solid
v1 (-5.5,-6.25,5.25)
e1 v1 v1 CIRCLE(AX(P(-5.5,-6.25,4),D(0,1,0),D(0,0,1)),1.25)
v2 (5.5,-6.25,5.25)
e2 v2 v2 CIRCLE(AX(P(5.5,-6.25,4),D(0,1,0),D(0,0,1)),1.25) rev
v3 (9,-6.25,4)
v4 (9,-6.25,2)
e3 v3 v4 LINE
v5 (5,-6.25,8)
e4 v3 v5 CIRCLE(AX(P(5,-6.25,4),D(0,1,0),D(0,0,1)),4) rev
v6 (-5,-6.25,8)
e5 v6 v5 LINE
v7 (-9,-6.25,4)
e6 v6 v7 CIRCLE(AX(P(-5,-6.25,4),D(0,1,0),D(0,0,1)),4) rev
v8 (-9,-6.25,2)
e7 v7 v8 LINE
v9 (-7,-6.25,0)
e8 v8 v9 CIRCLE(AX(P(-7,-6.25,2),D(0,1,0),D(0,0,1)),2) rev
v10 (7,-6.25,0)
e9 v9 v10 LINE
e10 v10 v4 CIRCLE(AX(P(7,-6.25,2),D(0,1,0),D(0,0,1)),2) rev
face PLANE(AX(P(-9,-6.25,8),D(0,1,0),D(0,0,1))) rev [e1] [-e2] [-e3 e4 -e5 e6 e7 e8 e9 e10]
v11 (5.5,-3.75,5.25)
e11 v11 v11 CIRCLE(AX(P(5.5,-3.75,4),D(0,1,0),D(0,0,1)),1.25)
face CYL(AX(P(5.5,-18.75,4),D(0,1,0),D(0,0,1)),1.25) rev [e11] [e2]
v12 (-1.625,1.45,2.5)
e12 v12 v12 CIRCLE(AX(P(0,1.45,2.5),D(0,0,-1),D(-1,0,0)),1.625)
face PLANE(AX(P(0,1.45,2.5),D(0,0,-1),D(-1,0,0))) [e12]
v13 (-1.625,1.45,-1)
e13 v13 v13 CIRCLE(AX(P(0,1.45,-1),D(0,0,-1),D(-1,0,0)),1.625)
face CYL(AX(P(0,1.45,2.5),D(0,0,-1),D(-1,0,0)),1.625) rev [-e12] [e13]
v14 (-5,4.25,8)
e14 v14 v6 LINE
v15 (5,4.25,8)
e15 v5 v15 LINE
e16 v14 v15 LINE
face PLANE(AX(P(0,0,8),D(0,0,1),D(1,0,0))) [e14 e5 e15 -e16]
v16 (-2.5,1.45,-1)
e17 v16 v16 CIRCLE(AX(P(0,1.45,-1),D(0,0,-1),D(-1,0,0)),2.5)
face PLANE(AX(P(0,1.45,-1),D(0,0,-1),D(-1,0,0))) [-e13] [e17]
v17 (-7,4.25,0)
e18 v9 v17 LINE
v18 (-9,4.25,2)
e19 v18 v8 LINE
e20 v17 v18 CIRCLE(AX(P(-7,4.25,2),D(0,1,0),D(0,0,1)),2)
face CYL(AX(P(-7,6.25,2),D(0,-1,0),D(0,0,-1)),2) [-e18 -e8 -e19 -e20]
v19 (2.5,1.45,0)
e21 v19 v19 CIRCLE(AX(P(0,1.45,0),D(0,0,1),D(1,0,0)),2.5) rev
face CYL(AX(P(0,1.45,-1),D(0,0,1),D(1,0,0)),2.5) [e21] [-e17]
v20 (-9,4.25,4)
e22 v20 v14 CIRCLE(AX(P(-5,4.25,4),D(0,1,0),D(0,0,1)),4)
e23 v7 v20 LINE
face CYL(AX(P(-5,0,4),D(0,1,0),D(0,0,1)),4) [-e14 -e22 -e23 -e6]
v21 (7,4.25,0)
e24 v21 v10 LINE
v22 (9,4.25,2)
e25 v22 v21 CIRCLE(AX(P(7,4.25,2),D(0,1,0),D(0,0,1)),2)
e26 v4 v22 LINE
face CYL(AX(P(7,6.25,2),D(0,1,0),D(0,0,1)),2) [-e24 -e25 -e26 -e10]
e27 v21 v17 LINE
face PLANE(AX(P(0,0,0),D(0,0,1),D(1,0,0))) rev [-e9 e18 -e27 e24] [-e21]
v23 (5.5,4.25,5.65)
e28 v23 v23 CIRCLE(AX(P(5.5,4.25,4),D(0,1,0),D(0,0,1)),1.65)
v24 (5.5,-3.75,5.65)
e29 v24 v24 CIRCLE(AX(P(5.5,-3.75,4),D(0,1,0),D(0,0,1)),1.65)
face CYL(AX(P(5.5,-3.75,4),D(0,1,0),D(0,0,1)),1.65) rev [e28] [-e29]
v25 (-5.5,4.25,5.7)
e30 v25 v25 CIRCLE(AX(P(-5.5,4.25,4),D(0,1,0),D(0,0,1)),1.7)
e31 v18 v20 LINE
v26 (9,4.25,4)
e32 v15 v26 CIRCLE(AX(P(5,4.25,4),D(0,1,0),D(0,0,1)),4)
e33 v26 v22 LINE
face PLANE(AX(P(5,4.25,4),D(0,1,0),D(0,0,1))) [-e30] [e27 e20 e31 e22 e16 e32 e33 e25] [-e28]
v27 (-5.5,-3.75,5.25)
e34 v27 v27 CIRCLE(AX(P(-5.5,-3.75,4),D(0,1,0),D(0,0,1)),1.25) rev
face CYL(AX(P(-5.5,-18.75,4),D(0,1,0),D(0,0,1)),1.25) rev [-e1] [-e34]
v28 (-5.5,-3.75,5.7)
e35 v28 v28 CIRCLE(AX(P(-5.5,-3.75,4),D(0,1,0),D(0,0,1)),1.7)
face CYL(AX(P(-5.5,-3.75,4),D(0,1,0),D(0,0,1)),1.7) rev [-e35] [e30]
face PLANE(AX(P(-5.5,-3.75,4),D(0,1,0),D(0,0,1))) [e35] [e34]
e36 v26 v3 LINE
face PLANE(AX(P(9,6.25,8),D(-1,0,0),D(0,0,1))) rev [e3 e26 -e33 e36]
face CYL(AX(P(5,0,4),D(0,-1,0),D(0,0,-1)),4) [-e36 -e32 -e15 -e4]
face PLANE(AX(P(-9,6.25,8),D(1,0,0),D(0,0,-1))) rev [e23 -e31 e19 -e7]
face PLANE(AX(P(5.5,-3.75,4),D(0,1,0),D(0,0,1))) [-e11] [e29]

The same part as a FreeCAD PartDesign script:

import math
import FreeCAD as App
import Part
import Sketcher
from FreeCAD import Vector
Q = App.Units.Quantity


def edges_at(feature, points):
    """Names of the edges that pass closest to the given points."""
    edges = feature.Shape.Edges
    near = lambda p: min(range(len(edges)), key=lambda i: edges[i].distToShape(Part.Vertex(*p))[0])
    return sorted({f"Edge{near(p) + 1}" for p in points})

doc = App.newDocument("Part")
params = doc.addObject("Spreadsheet::Sheet", "Params")
for row, (alias, value) in enumerate([
    ("sketch1_width", "18 mm"),
    ("sketch1_height", "12.5 mm"),
    ("pad1_length", "8 mm"),
    ("sketch2_diameter", "3.25 mm"),
    ("pocket1_length", "5 mm"),
    ("sketch3_diameter", "5 mm"),
    ("sketch3_diameter2", "3.25 mm"),
    ("pad2_length", "1 mm"),
    ("sketch4_diameter", "2.5 mm"),
    ("pocket2_length", "25 mm"),
    ("fillet_radius", "4 mm"),
    ("fillet2_radius", "2 mm"),
    ("sketch5_radius", "2 mm"),
    ("sketch5_radius2", "4 mm"),
    ("sketch5_width", "14 mm"),
    ("sketch5_height", "2 mm"),
    ("pocket3_length", "2 mm"),
    ("sketch6_diameter", "3.3 mm"),
    ("sketch6_diameter2", "3.4 mm"),
    ("pocket4_length", "8 mm"),
], start=1):
    params.set(f"A{row}", alias)
    params.set(f"B{row}", "=" + value)
    params.setAlias(f"B{row}", alias)

body = doc.addObject("PartDesign::Body", "Body")

sketch1 = body.newObject("Sketcher::SketchObject", "Sketch")
sketch1.AttachmentSupport = (doc.getObject("XY_Plane"), [""])
sketch1.MapMode = "FlatFace"
sketch1.addGeometry(Part.LineSegment(Vector(-9, 6, 0), Vector(-9, -6, 0)), False)
sketch1.addGeometry(Part.LineSegment(Vector(-9, -6, 0), Vector(9, -6, 0)), False)
sketch1.addGeometry(Part.LineSegment(Vector(9, -6, 0), Vector(9, 6, 0)), False)
sketch1.addGeometry(Part.LineSegment(Vector(9, 6, 0), Vector(-9, 6, 0)), False)
sketch1.addConstraint(Sketcher.Constraint("Coincident", 0, 2, 1, 1))
sketch1.addConstraint(Sketcher.Constraint("Coincident", 1, 2, 2, 1))
sketch1.addConstraint(Sketcher.Constraint("Coincident", 2, 2, 3, 1))
sketch1.addConstraint(Sketcher.Constraint("Coincident", 3, 2, 0, 1))
sketch1.addConstraint(Sketcher.Constraint("Vertical", 0))
sketch1.addConstraint(Sketcher.Constraint("Horizontal", 1))
sketch1.addConstraint(Sketcher.Constraint("Vertical", 2))
sketch1.addConstraint(Sketcher.Constraint("Horizontal", 3))
sketch1.addConstraint(Sketcher.Constraint("Symmetric", 0, 2, 2, 2, -1, 1))
sketch1.addConstraint(Sketcher.Constraint("DistanceX", 1, 1, 1, 2, Q("18 mm")))
sketch1.addConstraint(Sketcher.Constraint("DistanceY", 0, 2, 0, 1, Q("12.5 mm")))
sketch1.setExpression("Constraints[9]", "Params.sketch1_width")
sketch1.setExpression("Constraints[10]", "Params.sketch1_height")
pad1 = body.newObject("PartDesign::Pad", "Pad")
pad1.Profile = sketch1
pad1.setExpression("Length", "Params.pad1_length")

sketch2 = body.newObject("Sketcher::SketchObject", "Sketch001")
sketch2.AttachmentSupport = (doc.getObject("XY_Plane"), [""])
sketch2.MapMode = "FlatFace"
sketch2.addGeometry(Part.Circle(Vector(0, 1.4, 0), Vector(0, 0, 1), 1.6), False)
sketch2.addConstraint(Sketcher.Constraint("PointOnObject", 0, 3, -2))
sketch2.addConstraint(Sketcher.Constraint("Diameter", 0, Q("3.25 mm")))
sketch2.addConstraint(Sketcher.Constraint("DistanceY", -1, 1, 0, 3, Q("1.45 mm")))
sketch2.setExpression("Constraints[1]", "Params.sketch2_diameter")
pocket1 = body.newObject("PartDesign::Pocket", "Pocket")
pocket1.Profile = sketch2
pocket1.setExpression("Length", "Params.pocket1_length")
pocket1.Midplane = True

sketch3 = body.newObject("Sketcher::SketchObject", "Sketch002")
sketch3.AttachmentSupport = (doc.getObject("XY_Plane"), [""])
sketch3.MapMode = "FlatFace"
sketch3.AttachmentOffset = App.Placement(Vector(0, 0, -1), App.Rotation())
sketch3.addGeometry(Part.Circle(Vector(0, 1.4, 0), Vector(0, 0, 1), 2.5), False)
sketch3.addGeometry(Part.Circle(Vector(0, 1.4, 0), Vector(0, 0, 1), 1.6), False)
sketch3.addConstraint(Sketcher.Constraint("Coincident", 1, 3, 0, 3))
sketch3.addConstraint(Sketcher.Constraint("PointOnObject", 0, 3, -2))
sketch3.addConstraint(Sketcher.Constraint("Diameter", 0, Q("5 mm")))
sketch3.addConstraint(Sketcher.Constraint("Diameter", 1, Q("3.25 mm")))
sketch3.addConstraint(Sketcher.Constraint("DistanceY", -1, 1, 0, 3, Q("1.45 mm")))
sketch3.setExpression("Constraints[2]", "Params.sketch3_diameter")
sketch3.setExpression("Constraints[3]", "Params.sketch3_diameter2")
pad2 = body.newObject("PartDesign::Pad", "Pad001")
pad2.Profile = sketch3
pad2.setExpression("Length", "Params.pad2_length")

sketch4 = body.newObject("Sketcher::SketchObject", "Sketch003")
sketch4.AttachmentSupport = (doc.getObject("XZ_Plane"), [""])
sketch4.MapMode = "FlatFace"
sketch4.AttachmentOffset = App.Placement(Vector(0, 0, -6.25), App.Rotation())
sketch4.addGeometry(Part.Circle(Vector(-5.5, 4, 0), Vector(0, 0, 1), 1.2), False)
sketch4.addConstraint(Sketcher.Constraint("Diameter", 0, Q("2.5 mm")))
sketch4.addConstraint(Sketcher.Constraint("DistanceY", -1, 1, 0, 3, Q("4 mm")))
sketch4.addConstraint(Sketcher.Constraint("DistanceX", 0, 3, -1, 1, Q("5.5 mm")))
sketch4.setExpression("Constraints[0]", "Params.sketch4_diameter")
pocket2 = body.newObject("PartDesign::Pocket", "Pocket001")
pocket2.Profile = sketch4
pocket2.setExpression("Length", "Params.pocket2_length")
pocket2.Reversed = True
doc.recompute()

mirrored = body.newObject("PartDesign::Mirrored", "Mirrored")
mirrored.Originals = [pocket2]
mirrored.MirrorPlane = (doc.getObject("YZ_Plane"), [""])
body.Tip = mirrored
doc.recompute()

fillet = body.newObject("PartDesign::Fillet", "Fillet")
fillet.Base = (mirrored, edges_at(mirrored, [(-9, 0, 8), (9, 0, 8)]))
fillet.setExpression("Radius", "Params.fillet_radius")
doc.recompute()

fillet2 = body.newObject("PartDesign::Fillet", "Fillet001")
fillet2.Base = (fillet, edges_at(fillet, [(-9, 0, 0), (9, 0, 0)]))
fillet2.setExpression("Radius", "Params.fillet2_radius")

sketch5 = body.newObject("Sketcher::SketchObject", "Sketch004")
sketch5.AttachmentSupport = (doc.getObject("XZ_Plane"), [""])
sketch5.MapMode = "FlatFace"
sketch5.AttachmentOffset = App.Placement(Vector(0, 0, -6.25), App.Rotation())
sketch5.addGeometry(Part.LineSegment(Vector(7, 0, 0), Vector(-7, 0, 0)), False)
sketch5.addGeometry(Part.ArcOfCircle(Part.Circle(Vector(-7, 2, 0), Vector(0, 0, 1), 2), math.radians(-180), math.radians(-90)), False)
sketch5.addGeometry(Part.LineSegment(Vector(-9, 2, 0), Vector(-9, 4, 0)), False)
sketch5.addGeometry(Part.ArcOfCircle(Part.Circle(Vector(-5, 4, 0), Vector(0, 0, 1), 4), math.radians(90), math.radians(180)), False)
sketch5.addGeometry(Part.LineSegment(Vector(-5, 8, 0), Vector(5, 8, 0)), False)
sketch5.addGeometry(Part.ArcOfCircle(Part.Circle(Vector(5, 4, 0), Vector(0, 0, 1), 4), math.radians(0), math.radians(90)), False)
sketch5.addGeometry(Part.LineSegment(Vector(9, 4, 0), Vector(9, 2, 0)), False)
sketch5.addGeometry(Part.ArcOfCircle(Part.Circle(Vector(7, 2, 0), Vector(0, 0, 1), 2), math.radians(-90), math.radians(0)), False)
sketch5.addConstraint(Sketcher.Constraint("Tangent", 0, 2, 1, 2))
sketch5.addConstraint(Sketcher.Constraint("Tangent", 1, 1, 2, 1))
sketch5.addConstraint(Sketcher.Constraint("Tangent", 2, 2, 3, 2))
sketch5.addConstraint(Sketcher.Constraint("Tangent", 3, 1, 4, 1))
sketch5.addConstraint(Sketcher.Constraint("Tangent", 4, 2, 5, 2))
sketch5.addConstraint(Sketcher.Constraint("Tangent", 5, 1, 6, 1))
sketch5.addConstraint(Sketcher.Constraint("Tangent", 6, 2, 7, 2))
sketch5.addConstraint(Sketcher.Constraint("Tangent", 7, 1, 0, 1))
sketch5.addConstraint(Sketcher.Constraint("Horizontal", 0))
sketch5.addConstraint(Sketcher.Constraint("Vertical", 2))
sketch5.addConstraint(Sketcher.Constraint("Horizontal", 4))
sketch5.addConstraint(Sketcher.Constraint("Vertical", 6))
sketch5.addConstraint(Sketcher.Constraint("Equal", 3, 5))
sketch5.addConstraint(Sketcher.Constraint("Equal", 1, 7))
sketch5.addConstraint(Sketcher.Constraint("Symmetric", 0, 2, 7, 1, -1, 1))
sketch5.addConstraint(Sketcher.Constraint("Radius", 1, Q("2 mm")))
sketch5.addConstraint(Sketcher.Constraint("Radius", 3, Q("4 mm")))
sketch5.addConstraint(Sketcher.Constraint("DistanceX", 0, 2, 0, 1, Q("14 mm")))
sketch5.addConstraint(Sketcher.Constraint("DistanceY", 2, 1, 2, 2, Q("2 mm")))
sketch5.setExpression("Constraints[15]", "Params.sketch5_radius")
sketch5.setExpression("Constraints[16]", "Params.sketch5_radius2")
sketch5.setExpression("Constraints[17]", "Params.sketch5_width")
sketch5.setExpression("Constraints[18]", "Params.sketch5_height")
pocket3 = body.newObject("PartDesign::Pocket", "Pocket002")
pocket3.Profile = sketch5
pocket3.setExpression("Length", "Params.pocket3_length")
pocket3.Reversed = True

sketch6 = body.newObject("Sketcher::SketchObject", "Sketch005")
sketch6.AttachmentSupport = (doc.getObject("XZ_Plane"), [""])
sketch6.MapMode = "FlatFace"
sketch6.AttachmentOffset = App.Placement(Vector(0, 0, -4.25), App.Rotation())
sketch6.addGeometry(Part.Circle(Vector(5.5, 4, 0), Vector(0, 0, 1), 1.6), False)
sketch6.addGeometry(Part.Circle(Vector(-5.5, 4, 0), Vector(0, 0, 1), 1.7), False)
sketch6.addConstraint(Sketcher.Constraint("Symmetric", 0, 3, 1, 3, -2))
sketch6.addConstraint(Sketcher.Constraint("Diameter", 0, Q("3.3 mm")))
sketch6.addConstraint(Sketcher.Constraint("Diameter", 1, Q("3.4 mm")))
sketch6.addConstraint(Sketcher.Constraint("DistanceY", -1, 1, 0, 3, Q("4 mm")))
sketch6.addConstraint(Sketcher.Constraint("DistanceX", 1, 3, 0, 3, Q("11 mm")))
sketch6.setExpression("Constraints[1]", "Params.sketch6_diameter")
sketch6.setExpression("Constraints[2]", "Params.sketch6_diameter2")
pocket4 = body.newObject("PartDesign::Pocket", "Pocket003")
pocket4.Profile = sketch6
pocket4.setExpression("Length", "Params.pocket4_length")
pocket4.Reversed = True

doc.recompute()
